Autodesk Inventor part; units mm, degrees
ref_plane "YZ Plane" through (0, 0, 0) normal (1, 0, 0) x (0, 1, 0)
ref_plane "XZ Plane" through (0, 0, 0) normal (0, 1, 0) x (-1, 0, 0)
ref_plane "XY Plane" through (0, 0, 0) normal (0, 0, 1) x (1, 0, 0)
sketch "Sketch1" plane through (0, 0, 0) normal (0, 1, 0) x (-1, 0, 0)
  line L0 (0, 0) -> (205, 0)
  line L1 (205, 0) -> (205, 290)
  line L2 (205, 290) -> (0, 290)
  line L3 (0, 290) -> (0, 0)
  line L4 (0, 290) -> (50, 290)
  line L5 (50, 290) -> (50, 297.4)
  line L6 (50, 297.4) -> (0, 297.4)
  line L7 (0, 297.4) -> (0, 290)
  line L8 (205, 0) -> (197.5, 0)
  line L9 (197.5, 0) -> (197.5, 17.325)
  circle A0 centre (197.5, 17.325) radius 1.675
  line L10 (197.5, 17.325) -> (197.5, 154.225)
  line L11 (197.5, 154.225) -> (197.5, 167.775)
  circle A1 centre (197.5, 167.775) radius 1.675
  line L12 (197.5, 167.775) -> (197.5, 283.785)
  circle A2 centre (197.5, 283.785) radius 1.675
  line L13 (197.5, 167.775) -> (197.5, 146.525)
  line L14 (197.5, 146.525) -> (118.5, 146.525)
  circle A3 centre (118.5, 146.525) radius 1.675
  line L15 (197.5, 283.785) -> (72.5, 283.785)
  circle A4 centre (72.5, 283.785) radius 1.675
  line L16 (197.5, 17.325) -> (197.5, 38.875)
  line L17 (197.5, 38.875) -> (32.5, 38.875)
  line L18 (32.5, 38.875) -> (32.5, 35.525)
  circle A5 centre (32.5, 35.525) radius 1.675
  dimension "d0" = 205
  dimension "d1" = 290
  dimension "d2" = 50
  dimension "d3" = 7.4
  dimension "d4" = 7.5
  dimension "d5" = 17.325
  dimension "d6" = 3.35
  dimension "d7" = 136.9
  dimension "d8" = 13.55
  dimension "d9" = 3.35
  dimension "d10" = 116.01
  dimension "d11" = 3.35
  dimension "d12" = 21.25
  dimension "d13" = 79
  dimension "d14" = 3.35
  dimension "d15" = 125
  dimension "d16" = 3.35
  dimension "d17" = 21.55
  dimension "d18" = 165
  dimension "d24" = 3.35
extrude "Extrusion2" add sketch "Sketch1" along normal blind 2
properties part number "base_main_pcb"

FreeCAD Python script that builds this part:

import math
import FreeCAD as App
import Part
import Sketcher


def add_polygon(sketch, points):
    """Adds a closed chain of lines whose ends are joined by coincident constraints."""
    first, n = sketch.GeometryCount, len(points)
    for a, b in zip(points, points[1:] + points[:1]):
        sketch.addGeometry(Part.LineSegment(App.Vector(*a, 0), App.Vector(*b, 0)), False)
    for i in range(n):
        sketch.addConstraint(Sketcher.Constraint("Coincident", first + i, 2, first + (i + 1) % n, 1))

doc = App.newDocument("Part")
body = doc.addObject("PartDesign::Body", "Body")

sketch1 = doc.addObject("Sketcher::SketchObject", "Sketch")
body.addObject(sketch1)
sketch1.AttachmentSupport = (doc.XZ_Plane, [""])
sketch1.MapMode = "FlatFace"
add_polygon(sketch1, [(0, 0), (-197.5, 0), (-205, 0), (-205, 290), (-50, 290), (-50, 297.4), (0, 297.4)])
sketch1.addGeometry(Part.Circle(App.Vector(-32.5, 35.525, 0), App.Vector(0, 0, 1), 1.675), False)
sketch1.addGeometry(Part.ArcOfCircle(Part.Circle(App.Vector(-197.5, 17.325, 0), App.Vector(0, 0, 1), 1.675), math.radians(-90), math.radians(90)), False)
sketch1.addGeometry(Part.ArcOfCircle(Part.Circle(App.Vector(-197.5, 17.325, 0), App.Vector(0, 0, 1), 1.675), math.radians(90), math.radians(270)), False)
sketch1.addGeometry(Part.Circle(App.Vector(-118.5, 146.525, 0), App.Vector(0, 0, 1), 1.675), False)
sketch1.addGeometry(Part.Circle(App.Vector(-72.5, 283.785, 0), App.Vector(0, 0, 1), 1.675), False)
sketch1.addGeometry(Part.ArcOfCircle(Part.Circle(App.Vector(-197.5, 167.775, 0), App.Vector(0, 0, 1), 1.675), math.radians(-90), math.radians(90)), False)
sketch1.addGeometry(Part.ArcOfCircle(Part.Circle(App.Vector(-197.5, 167.775, 0), App.Vector(0, 0, 1), 1.675), math.radians(90), math.radians(270)), False)
sketch1.addGeometry(Part.ArcOfCircle(Part.Circle(App.Vector(-197.5, 283.785, 0), App.Vector(0, 0, 1), 1.675), math.radians(-90), math.radians(0)), False)
sketch1.addGeometry(Part.ArcOfCircle(Part.Circle(App.Vector(-197.5, 283.785, 0), App.Vector(0, 0, 1), 1.675), math.radians(0), math.radians(270)), False)
sketch1.addConstraint([
    Sketcher.Constraint("Tangent", 8, 1, 9, 2),
    Sketcher.Constraint("Coincident", 9, 1, 8, 2),
    Sketcher.Constraint("Tangent", 12, 1, 13, 2),
    Sketcher.Constraint("Coincident", 13, 1, 12, 2),
    Sketcher.Constraint("Tangent", 14, 1, 15, 2),
    Sketcher.Constraint("Coincident", 15, 1, 14, 2),
    Sketcher.Constraint("Horizontal", 0),
    Sketcher.Constraint("Horizontal", 1),
    Sketcher.Constraint("Vertical", 2),
    Sketcher.Constraint("Horizontal", 3),
    Sketcher.Constraint("Vertical", 4),
    Sketcher.Constraint("Horizontal", 5),
    Sketcher.Constraint("Vertical", 6),
    Sketcher.Constraint("Coincident", 6, 2, -1, 1),
    Sketcher.Constraint("Equal", 7, 8),
    Sketcher.Constraint("Equal", 9, 10),
    Sketcher.Constraint("Equal", 10, 11),
    Sketcher.Constraint("Equal", 11, 12),
    Sketcher.Constraint("Equal", 13, 14),
    Sketcher.Constraint("Horizontal", 11, 3, 14, 3),
    Sketcher.Constraint("Horizontal", 14, 3, 15, 1),
    Sketcher.Constraint("Vertical", 9, 3, 12, 3),
    Sketcher.Constraint("Vertical", 13, 3, 14, 3),
    Sketcher.Constraint("Vertical", 15, 3, 0, 2),
    Sketcher.Constraint("Vertical", 0, 2, 8, 1),
    Sketcher.Constraint("Vertical", 8, 1, 9, 1),
    Sketcher.Constraint("Vertical", 9, 1, 12, 1),
    Sketcher.Constraint("Vertical", 12, 1, 13, 1),
    Sketcher.Constraint("Vertical", 13, 1, 14, 1),
    Sketcher.Constraint("Diameter", 7, 3.35),
    Sketcher.Constraint("DistanceX", 5, 1, 5, 2, 50.0),
    Sketcher.Constraint("DistanceY", 2, 1, 2, 2, 290.0),
    Sketcher.Constraint("DistanceX", 1, 2, 1, 1, 7.5),
    Sketcher.Constraint("DistanceY", 4, 1, 4, 2, 7.4),
    Sketcher.Constraint("DistanceX", 1, 2, -1, 1, 205.0),
    Sketcher.Constraint("DistanceX", 8, 3, 7, 3, 165.0),
    Sketcher.Constraint("DistanceX", 8, 3, 10, 3, 79.0),
    Sketcher.Constraint("DistanceX", 8, 3, 11, 3, 125.0),
    Sketcher.Constraint("DistanceY", 10, 3, 12, 3, 21.25),
    Sketcher.Constraint("DistanceY", 12, 3, 11, 3, 116.01),
    Sketcher.Constraint("DistanceY", -1, 1, 8, 3, 17.325),
    Sketcher.Constraint("DistanceY", 7, 3, 10, 3, 111.0),
    Sketcher.Constraint("DistanceY", -1, 1, 12, 1, 166.1),
])
pad1 = doc.addObject("PartDesign::Pad", "Pad")
body.addObject(pad1)
pad1.Profile = sketch1
pad1.Length = 2
pad1.Reversed = True

doc.recompute()
